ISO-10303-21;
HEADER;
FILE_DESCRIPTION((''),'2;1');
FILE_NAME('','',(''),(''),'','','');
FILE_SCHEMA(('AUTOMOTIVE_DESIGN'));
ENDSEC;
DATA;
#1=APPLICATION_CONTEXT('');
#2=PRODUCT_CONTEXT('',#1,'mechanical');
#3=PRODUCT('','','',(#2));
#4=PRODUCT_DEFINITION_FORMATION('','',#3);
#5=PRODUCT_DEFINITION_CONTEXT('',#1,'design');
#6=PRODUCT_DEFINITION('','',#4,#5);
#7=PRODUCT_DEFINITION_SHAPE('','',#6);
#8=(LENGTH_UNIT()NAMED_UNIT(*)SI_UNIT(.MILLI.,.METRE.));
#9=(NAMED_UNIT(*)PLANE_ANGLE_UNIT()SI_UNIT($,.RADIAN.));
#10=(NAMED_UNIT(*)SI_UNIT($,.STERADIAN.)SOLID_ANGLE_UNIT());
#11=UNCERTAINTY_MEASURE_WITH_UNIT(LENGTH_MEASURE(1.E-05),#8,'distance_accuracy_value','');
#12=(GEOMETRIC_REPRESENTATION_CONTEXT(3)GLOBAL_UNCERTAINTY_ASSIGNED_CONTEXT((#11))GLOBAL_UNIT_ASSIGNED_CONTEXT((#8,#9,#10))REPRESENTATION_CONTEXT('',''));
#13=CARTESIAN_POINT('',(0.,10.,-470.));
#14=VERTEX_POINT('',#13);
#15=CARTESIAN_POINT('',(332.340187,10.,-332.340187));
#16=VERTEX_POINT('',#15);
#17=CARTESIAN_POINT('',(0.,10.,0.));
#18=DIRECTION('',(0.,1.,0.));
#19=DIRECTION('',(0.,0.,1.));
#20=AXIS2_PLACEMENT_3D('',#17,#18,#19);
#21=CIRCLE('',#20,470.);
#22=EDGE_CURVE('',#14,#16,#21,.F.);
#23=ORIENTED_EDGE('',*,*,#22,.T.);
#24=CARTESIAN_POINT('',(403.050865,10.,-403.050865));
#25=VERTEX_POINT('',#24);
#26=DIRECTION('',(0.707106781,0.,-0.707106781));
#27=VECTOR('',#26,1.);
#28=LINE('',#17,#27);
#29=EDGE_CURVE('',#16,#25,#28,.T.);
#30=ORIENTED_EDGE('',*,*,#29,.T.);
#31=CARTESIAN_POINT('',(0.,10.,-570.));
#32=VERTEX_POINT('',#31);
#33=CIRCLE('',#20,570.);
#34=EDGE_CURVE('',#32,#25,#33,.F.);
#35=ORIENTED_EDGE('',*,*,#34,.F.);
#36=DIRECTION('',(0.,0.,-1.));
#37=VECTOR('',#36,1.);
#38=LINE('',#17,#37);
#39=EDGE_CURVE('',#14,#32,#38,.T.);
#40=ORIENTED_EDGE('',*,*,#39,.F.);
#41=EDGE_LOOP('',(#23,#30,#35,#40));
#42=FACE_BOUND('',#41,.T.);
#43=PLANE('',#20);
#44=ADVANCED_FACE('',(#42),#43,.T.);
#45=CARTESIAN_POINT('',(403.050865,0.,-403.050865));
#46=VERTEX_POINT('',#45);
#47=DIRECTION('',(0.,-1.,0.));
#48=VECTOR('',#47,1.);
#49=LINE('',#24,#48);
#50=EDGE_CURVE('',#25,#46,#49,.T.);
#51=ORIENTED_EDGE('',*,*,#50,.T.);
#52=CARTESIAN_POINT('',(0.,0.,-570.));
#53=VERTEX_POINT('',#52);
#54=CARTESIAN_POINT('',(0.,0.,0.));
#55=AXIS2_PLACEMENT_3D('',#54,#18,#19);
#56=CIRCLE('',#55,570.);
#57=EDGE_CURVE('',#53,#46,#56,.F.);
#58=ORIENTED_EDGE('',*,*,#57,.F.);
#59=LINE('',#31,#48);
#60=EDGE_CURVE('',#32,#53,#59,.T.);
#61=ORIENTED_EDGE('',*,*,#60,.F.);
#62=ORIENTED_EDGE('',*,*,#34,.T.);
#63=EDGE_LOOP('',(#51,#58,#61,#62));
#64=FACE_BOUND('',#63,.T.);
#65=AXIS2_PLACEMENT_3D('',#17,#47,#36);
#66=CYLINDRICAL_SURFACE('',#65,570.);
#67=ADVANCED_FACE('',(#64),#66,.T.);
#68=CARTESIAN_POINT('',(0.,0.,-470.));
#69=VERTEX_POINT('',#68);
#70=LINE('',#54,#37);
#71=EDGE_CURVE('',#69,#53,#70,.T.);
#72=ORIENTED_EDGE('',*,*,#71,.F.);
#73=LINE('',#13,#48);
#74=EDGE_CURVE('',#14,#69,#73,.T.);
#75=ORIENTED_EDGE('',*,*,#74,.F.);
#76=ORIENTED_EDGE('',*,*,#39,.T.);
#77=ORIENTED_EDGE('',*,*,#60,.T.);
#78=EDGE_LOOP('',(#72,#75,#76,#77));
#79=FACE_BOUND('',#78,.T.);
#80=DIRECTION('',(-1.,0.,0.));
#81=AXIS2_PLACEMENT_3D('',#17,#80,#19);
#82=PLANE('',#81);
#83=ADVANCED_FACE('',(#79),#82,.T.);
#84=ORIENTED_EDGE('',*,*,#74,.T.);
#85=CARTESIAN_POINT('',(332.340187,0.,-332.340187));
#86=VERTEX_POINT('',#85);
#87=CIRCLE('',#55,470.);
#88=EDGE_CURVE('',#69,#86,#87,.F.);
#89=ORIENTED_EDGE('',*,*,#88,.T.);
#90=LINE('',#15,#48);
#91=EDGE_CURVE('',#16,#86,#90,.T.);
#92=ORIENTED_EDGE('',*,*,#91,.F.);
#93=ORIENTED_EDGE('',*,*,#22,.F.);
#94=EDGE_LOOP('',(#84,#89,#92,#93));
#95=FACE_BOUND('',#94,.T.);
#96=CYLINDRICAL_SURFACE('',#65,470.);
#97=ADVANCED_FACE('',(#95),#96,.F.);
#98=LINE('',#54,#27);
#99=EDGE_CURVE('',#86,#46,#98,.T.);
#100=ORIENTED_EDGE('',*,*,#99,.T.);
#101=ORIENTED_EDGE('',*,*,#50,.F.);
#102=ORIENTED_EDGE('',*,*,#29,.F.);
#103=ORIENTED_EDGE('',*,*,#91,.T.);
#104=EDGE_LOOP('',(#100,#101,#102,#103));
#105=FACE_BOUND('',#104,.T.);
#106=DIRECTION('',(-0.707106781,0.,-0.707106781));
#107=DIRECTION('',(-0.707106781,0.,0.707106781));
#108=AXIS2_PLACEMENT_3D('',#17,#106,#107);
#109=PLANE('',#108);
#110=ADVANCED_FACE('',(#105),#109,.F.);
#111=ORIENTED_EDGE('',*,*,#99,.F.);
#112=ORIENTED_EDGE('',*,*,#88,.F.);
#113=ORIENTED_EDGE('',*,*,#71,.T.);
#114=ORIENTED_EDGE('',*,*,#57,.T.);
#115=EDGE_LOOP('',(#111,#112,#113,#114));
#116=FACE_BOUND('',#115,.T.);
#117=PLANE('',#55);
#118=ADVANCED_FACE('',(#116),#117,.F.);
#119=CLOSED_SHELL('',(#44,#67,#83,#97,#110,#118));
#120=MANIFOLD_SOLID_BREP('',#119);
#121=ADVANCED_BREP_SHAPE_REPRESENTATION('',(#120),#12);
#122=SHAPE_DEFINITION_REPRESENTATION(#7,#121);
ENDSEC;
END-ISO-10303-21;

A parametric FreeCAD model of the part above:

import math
import FreeCAD as App
import Part
import Sketcher
from FreeCAD import Vector
Q = App.Units.Quantity

doc = App.newDocument("Part")
body = doc.addObject("PartDesign::Body", "Body")

# Sketch on XZ plane
sketch1 = body.newObject("Sketcher::SketchObject", "Sketch")
sketch1.AttachmentSupport = (doc.getObject("XZ_Plane"), [""])
sketch1.MapMode = "FlatFace"
sketch1.addGeometry(Part.ArcOfCircle(Part.Circle(Vector(0, 0, 0), Vector(0, 0, 1), 570), math.radians(-90), math.radians(-45)), False)
sketch1.addGeometry(Part.LineSegment(Vector(0, -570, 0), Vector(0, -470, 0)), False)
sketch1.addGeometry(Part.ArcOfCircle(Part.Circle(Vector(0, 0, 0), Vector(0, 0, 1), 470), math.radians(-90), math.radians(-45)), False)
sketch1.addGeometry(Part.LineSegment(Vector(332.340187, -332.340187, 0), Vector(403.050865, -403.050865, 0)), False)
sketch1.addConstraint(Sketcher.Constraint("Coincident", 0, 1, 1, 1))
sketch1.addConstraint(Sketcher.Constraint("Coincident", 1, 2, 2, 1))
sketch1.addConstraint(Sketcher.Constraint("Coincident", 2, 2, 3, 1))
sketch1.addConstraint(Sketcher.Constraint("Coincident", 3, 2, 0, 2))
sketch1.addConstraint(Sketcher.Constraint("Vertical", 1))
sketch1.addConstraint(Sketcher.Constraint("Coincident", 0, 3, -1, 1))
sketch1.addConstraint(Sketcher.Constraint("Coincident", 2, 3, -1, 1))
sketch1.addConstraint(Sketcher.Constraint("PointOnObject", 1, 2, -2))
sketch1.addConstraint(Sketcher.Constraint("Radius", 0, Q("570 mm")))
sketch1.addConstraint(Sketcher.Constraint("Radius", 2, Q("470 mm")))
sketch1.addConstraint(Sketcher.Constraint("Angle", 3, Q("-45 deg")))
sketch1.addConstraint(Sketcher.Constraint("DistanceX", -1, 1, 3, 2, Q("403.050865 mm")))
pad1 = body.newObject("PartDesign::Pad", "Pad")
pad1.Profile = sketch1
pad1.Length = 10
pad1.Reversed = True

doc.recompute()
